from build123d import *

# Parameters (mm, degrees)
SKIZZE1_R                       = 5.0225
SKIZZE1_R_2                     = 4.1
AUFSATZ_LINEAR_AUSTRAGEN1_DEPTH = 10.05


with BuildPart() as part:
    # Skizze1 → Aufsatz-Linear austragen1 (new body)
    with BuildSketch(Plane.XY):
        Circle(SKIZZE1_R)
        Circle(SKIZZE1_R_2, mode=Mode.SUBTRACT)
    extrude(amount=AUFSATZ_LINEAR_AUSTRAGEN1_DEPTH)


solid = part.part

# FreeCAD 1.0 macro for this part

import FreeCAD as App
import Part
import Sketcher

V = App.Vector
Q = App.Units.Quantity

doc = App.newDocument("Part")
body = doc.addObject("PartDesign::Body", "Body")

sketch1 = body.newObject("Sketcher::SketchObject", "Sketch")
sketch1.AttachmentSupport = (doc.getObject("XY_Plane"), [""])
sketch1.MapMode = "FlatFace"
sketch1.addGeometry(Part.Circle(V(0, 0, 0), V(0, 0, 1), 5), False)
sketch1.addGeometry(Part.Circle(V(0, 0, 0), V(0, 0, 1), 4.1), False)
sketch1.addConstraint(Sketcher.Constraint("Coincident", 0, 3, -1, 1))
sketch1.addConstraint(Sketcher.Constraint("Coincident", 1, 3, -1, 1))
sketch1.addConstraint(Sketcher.Constraint("Diameter", 1, Q("8.2 mm")))
sketch1.addConstraint(Sketcher.Constraint("Diameter", 0, Q("10.045 mm")))
pad1 = body.newObject("PartDesign::Pad", "Pad")
pad1.Profile = sketch1
pad1.Length = 10.05

doc.recompute()
